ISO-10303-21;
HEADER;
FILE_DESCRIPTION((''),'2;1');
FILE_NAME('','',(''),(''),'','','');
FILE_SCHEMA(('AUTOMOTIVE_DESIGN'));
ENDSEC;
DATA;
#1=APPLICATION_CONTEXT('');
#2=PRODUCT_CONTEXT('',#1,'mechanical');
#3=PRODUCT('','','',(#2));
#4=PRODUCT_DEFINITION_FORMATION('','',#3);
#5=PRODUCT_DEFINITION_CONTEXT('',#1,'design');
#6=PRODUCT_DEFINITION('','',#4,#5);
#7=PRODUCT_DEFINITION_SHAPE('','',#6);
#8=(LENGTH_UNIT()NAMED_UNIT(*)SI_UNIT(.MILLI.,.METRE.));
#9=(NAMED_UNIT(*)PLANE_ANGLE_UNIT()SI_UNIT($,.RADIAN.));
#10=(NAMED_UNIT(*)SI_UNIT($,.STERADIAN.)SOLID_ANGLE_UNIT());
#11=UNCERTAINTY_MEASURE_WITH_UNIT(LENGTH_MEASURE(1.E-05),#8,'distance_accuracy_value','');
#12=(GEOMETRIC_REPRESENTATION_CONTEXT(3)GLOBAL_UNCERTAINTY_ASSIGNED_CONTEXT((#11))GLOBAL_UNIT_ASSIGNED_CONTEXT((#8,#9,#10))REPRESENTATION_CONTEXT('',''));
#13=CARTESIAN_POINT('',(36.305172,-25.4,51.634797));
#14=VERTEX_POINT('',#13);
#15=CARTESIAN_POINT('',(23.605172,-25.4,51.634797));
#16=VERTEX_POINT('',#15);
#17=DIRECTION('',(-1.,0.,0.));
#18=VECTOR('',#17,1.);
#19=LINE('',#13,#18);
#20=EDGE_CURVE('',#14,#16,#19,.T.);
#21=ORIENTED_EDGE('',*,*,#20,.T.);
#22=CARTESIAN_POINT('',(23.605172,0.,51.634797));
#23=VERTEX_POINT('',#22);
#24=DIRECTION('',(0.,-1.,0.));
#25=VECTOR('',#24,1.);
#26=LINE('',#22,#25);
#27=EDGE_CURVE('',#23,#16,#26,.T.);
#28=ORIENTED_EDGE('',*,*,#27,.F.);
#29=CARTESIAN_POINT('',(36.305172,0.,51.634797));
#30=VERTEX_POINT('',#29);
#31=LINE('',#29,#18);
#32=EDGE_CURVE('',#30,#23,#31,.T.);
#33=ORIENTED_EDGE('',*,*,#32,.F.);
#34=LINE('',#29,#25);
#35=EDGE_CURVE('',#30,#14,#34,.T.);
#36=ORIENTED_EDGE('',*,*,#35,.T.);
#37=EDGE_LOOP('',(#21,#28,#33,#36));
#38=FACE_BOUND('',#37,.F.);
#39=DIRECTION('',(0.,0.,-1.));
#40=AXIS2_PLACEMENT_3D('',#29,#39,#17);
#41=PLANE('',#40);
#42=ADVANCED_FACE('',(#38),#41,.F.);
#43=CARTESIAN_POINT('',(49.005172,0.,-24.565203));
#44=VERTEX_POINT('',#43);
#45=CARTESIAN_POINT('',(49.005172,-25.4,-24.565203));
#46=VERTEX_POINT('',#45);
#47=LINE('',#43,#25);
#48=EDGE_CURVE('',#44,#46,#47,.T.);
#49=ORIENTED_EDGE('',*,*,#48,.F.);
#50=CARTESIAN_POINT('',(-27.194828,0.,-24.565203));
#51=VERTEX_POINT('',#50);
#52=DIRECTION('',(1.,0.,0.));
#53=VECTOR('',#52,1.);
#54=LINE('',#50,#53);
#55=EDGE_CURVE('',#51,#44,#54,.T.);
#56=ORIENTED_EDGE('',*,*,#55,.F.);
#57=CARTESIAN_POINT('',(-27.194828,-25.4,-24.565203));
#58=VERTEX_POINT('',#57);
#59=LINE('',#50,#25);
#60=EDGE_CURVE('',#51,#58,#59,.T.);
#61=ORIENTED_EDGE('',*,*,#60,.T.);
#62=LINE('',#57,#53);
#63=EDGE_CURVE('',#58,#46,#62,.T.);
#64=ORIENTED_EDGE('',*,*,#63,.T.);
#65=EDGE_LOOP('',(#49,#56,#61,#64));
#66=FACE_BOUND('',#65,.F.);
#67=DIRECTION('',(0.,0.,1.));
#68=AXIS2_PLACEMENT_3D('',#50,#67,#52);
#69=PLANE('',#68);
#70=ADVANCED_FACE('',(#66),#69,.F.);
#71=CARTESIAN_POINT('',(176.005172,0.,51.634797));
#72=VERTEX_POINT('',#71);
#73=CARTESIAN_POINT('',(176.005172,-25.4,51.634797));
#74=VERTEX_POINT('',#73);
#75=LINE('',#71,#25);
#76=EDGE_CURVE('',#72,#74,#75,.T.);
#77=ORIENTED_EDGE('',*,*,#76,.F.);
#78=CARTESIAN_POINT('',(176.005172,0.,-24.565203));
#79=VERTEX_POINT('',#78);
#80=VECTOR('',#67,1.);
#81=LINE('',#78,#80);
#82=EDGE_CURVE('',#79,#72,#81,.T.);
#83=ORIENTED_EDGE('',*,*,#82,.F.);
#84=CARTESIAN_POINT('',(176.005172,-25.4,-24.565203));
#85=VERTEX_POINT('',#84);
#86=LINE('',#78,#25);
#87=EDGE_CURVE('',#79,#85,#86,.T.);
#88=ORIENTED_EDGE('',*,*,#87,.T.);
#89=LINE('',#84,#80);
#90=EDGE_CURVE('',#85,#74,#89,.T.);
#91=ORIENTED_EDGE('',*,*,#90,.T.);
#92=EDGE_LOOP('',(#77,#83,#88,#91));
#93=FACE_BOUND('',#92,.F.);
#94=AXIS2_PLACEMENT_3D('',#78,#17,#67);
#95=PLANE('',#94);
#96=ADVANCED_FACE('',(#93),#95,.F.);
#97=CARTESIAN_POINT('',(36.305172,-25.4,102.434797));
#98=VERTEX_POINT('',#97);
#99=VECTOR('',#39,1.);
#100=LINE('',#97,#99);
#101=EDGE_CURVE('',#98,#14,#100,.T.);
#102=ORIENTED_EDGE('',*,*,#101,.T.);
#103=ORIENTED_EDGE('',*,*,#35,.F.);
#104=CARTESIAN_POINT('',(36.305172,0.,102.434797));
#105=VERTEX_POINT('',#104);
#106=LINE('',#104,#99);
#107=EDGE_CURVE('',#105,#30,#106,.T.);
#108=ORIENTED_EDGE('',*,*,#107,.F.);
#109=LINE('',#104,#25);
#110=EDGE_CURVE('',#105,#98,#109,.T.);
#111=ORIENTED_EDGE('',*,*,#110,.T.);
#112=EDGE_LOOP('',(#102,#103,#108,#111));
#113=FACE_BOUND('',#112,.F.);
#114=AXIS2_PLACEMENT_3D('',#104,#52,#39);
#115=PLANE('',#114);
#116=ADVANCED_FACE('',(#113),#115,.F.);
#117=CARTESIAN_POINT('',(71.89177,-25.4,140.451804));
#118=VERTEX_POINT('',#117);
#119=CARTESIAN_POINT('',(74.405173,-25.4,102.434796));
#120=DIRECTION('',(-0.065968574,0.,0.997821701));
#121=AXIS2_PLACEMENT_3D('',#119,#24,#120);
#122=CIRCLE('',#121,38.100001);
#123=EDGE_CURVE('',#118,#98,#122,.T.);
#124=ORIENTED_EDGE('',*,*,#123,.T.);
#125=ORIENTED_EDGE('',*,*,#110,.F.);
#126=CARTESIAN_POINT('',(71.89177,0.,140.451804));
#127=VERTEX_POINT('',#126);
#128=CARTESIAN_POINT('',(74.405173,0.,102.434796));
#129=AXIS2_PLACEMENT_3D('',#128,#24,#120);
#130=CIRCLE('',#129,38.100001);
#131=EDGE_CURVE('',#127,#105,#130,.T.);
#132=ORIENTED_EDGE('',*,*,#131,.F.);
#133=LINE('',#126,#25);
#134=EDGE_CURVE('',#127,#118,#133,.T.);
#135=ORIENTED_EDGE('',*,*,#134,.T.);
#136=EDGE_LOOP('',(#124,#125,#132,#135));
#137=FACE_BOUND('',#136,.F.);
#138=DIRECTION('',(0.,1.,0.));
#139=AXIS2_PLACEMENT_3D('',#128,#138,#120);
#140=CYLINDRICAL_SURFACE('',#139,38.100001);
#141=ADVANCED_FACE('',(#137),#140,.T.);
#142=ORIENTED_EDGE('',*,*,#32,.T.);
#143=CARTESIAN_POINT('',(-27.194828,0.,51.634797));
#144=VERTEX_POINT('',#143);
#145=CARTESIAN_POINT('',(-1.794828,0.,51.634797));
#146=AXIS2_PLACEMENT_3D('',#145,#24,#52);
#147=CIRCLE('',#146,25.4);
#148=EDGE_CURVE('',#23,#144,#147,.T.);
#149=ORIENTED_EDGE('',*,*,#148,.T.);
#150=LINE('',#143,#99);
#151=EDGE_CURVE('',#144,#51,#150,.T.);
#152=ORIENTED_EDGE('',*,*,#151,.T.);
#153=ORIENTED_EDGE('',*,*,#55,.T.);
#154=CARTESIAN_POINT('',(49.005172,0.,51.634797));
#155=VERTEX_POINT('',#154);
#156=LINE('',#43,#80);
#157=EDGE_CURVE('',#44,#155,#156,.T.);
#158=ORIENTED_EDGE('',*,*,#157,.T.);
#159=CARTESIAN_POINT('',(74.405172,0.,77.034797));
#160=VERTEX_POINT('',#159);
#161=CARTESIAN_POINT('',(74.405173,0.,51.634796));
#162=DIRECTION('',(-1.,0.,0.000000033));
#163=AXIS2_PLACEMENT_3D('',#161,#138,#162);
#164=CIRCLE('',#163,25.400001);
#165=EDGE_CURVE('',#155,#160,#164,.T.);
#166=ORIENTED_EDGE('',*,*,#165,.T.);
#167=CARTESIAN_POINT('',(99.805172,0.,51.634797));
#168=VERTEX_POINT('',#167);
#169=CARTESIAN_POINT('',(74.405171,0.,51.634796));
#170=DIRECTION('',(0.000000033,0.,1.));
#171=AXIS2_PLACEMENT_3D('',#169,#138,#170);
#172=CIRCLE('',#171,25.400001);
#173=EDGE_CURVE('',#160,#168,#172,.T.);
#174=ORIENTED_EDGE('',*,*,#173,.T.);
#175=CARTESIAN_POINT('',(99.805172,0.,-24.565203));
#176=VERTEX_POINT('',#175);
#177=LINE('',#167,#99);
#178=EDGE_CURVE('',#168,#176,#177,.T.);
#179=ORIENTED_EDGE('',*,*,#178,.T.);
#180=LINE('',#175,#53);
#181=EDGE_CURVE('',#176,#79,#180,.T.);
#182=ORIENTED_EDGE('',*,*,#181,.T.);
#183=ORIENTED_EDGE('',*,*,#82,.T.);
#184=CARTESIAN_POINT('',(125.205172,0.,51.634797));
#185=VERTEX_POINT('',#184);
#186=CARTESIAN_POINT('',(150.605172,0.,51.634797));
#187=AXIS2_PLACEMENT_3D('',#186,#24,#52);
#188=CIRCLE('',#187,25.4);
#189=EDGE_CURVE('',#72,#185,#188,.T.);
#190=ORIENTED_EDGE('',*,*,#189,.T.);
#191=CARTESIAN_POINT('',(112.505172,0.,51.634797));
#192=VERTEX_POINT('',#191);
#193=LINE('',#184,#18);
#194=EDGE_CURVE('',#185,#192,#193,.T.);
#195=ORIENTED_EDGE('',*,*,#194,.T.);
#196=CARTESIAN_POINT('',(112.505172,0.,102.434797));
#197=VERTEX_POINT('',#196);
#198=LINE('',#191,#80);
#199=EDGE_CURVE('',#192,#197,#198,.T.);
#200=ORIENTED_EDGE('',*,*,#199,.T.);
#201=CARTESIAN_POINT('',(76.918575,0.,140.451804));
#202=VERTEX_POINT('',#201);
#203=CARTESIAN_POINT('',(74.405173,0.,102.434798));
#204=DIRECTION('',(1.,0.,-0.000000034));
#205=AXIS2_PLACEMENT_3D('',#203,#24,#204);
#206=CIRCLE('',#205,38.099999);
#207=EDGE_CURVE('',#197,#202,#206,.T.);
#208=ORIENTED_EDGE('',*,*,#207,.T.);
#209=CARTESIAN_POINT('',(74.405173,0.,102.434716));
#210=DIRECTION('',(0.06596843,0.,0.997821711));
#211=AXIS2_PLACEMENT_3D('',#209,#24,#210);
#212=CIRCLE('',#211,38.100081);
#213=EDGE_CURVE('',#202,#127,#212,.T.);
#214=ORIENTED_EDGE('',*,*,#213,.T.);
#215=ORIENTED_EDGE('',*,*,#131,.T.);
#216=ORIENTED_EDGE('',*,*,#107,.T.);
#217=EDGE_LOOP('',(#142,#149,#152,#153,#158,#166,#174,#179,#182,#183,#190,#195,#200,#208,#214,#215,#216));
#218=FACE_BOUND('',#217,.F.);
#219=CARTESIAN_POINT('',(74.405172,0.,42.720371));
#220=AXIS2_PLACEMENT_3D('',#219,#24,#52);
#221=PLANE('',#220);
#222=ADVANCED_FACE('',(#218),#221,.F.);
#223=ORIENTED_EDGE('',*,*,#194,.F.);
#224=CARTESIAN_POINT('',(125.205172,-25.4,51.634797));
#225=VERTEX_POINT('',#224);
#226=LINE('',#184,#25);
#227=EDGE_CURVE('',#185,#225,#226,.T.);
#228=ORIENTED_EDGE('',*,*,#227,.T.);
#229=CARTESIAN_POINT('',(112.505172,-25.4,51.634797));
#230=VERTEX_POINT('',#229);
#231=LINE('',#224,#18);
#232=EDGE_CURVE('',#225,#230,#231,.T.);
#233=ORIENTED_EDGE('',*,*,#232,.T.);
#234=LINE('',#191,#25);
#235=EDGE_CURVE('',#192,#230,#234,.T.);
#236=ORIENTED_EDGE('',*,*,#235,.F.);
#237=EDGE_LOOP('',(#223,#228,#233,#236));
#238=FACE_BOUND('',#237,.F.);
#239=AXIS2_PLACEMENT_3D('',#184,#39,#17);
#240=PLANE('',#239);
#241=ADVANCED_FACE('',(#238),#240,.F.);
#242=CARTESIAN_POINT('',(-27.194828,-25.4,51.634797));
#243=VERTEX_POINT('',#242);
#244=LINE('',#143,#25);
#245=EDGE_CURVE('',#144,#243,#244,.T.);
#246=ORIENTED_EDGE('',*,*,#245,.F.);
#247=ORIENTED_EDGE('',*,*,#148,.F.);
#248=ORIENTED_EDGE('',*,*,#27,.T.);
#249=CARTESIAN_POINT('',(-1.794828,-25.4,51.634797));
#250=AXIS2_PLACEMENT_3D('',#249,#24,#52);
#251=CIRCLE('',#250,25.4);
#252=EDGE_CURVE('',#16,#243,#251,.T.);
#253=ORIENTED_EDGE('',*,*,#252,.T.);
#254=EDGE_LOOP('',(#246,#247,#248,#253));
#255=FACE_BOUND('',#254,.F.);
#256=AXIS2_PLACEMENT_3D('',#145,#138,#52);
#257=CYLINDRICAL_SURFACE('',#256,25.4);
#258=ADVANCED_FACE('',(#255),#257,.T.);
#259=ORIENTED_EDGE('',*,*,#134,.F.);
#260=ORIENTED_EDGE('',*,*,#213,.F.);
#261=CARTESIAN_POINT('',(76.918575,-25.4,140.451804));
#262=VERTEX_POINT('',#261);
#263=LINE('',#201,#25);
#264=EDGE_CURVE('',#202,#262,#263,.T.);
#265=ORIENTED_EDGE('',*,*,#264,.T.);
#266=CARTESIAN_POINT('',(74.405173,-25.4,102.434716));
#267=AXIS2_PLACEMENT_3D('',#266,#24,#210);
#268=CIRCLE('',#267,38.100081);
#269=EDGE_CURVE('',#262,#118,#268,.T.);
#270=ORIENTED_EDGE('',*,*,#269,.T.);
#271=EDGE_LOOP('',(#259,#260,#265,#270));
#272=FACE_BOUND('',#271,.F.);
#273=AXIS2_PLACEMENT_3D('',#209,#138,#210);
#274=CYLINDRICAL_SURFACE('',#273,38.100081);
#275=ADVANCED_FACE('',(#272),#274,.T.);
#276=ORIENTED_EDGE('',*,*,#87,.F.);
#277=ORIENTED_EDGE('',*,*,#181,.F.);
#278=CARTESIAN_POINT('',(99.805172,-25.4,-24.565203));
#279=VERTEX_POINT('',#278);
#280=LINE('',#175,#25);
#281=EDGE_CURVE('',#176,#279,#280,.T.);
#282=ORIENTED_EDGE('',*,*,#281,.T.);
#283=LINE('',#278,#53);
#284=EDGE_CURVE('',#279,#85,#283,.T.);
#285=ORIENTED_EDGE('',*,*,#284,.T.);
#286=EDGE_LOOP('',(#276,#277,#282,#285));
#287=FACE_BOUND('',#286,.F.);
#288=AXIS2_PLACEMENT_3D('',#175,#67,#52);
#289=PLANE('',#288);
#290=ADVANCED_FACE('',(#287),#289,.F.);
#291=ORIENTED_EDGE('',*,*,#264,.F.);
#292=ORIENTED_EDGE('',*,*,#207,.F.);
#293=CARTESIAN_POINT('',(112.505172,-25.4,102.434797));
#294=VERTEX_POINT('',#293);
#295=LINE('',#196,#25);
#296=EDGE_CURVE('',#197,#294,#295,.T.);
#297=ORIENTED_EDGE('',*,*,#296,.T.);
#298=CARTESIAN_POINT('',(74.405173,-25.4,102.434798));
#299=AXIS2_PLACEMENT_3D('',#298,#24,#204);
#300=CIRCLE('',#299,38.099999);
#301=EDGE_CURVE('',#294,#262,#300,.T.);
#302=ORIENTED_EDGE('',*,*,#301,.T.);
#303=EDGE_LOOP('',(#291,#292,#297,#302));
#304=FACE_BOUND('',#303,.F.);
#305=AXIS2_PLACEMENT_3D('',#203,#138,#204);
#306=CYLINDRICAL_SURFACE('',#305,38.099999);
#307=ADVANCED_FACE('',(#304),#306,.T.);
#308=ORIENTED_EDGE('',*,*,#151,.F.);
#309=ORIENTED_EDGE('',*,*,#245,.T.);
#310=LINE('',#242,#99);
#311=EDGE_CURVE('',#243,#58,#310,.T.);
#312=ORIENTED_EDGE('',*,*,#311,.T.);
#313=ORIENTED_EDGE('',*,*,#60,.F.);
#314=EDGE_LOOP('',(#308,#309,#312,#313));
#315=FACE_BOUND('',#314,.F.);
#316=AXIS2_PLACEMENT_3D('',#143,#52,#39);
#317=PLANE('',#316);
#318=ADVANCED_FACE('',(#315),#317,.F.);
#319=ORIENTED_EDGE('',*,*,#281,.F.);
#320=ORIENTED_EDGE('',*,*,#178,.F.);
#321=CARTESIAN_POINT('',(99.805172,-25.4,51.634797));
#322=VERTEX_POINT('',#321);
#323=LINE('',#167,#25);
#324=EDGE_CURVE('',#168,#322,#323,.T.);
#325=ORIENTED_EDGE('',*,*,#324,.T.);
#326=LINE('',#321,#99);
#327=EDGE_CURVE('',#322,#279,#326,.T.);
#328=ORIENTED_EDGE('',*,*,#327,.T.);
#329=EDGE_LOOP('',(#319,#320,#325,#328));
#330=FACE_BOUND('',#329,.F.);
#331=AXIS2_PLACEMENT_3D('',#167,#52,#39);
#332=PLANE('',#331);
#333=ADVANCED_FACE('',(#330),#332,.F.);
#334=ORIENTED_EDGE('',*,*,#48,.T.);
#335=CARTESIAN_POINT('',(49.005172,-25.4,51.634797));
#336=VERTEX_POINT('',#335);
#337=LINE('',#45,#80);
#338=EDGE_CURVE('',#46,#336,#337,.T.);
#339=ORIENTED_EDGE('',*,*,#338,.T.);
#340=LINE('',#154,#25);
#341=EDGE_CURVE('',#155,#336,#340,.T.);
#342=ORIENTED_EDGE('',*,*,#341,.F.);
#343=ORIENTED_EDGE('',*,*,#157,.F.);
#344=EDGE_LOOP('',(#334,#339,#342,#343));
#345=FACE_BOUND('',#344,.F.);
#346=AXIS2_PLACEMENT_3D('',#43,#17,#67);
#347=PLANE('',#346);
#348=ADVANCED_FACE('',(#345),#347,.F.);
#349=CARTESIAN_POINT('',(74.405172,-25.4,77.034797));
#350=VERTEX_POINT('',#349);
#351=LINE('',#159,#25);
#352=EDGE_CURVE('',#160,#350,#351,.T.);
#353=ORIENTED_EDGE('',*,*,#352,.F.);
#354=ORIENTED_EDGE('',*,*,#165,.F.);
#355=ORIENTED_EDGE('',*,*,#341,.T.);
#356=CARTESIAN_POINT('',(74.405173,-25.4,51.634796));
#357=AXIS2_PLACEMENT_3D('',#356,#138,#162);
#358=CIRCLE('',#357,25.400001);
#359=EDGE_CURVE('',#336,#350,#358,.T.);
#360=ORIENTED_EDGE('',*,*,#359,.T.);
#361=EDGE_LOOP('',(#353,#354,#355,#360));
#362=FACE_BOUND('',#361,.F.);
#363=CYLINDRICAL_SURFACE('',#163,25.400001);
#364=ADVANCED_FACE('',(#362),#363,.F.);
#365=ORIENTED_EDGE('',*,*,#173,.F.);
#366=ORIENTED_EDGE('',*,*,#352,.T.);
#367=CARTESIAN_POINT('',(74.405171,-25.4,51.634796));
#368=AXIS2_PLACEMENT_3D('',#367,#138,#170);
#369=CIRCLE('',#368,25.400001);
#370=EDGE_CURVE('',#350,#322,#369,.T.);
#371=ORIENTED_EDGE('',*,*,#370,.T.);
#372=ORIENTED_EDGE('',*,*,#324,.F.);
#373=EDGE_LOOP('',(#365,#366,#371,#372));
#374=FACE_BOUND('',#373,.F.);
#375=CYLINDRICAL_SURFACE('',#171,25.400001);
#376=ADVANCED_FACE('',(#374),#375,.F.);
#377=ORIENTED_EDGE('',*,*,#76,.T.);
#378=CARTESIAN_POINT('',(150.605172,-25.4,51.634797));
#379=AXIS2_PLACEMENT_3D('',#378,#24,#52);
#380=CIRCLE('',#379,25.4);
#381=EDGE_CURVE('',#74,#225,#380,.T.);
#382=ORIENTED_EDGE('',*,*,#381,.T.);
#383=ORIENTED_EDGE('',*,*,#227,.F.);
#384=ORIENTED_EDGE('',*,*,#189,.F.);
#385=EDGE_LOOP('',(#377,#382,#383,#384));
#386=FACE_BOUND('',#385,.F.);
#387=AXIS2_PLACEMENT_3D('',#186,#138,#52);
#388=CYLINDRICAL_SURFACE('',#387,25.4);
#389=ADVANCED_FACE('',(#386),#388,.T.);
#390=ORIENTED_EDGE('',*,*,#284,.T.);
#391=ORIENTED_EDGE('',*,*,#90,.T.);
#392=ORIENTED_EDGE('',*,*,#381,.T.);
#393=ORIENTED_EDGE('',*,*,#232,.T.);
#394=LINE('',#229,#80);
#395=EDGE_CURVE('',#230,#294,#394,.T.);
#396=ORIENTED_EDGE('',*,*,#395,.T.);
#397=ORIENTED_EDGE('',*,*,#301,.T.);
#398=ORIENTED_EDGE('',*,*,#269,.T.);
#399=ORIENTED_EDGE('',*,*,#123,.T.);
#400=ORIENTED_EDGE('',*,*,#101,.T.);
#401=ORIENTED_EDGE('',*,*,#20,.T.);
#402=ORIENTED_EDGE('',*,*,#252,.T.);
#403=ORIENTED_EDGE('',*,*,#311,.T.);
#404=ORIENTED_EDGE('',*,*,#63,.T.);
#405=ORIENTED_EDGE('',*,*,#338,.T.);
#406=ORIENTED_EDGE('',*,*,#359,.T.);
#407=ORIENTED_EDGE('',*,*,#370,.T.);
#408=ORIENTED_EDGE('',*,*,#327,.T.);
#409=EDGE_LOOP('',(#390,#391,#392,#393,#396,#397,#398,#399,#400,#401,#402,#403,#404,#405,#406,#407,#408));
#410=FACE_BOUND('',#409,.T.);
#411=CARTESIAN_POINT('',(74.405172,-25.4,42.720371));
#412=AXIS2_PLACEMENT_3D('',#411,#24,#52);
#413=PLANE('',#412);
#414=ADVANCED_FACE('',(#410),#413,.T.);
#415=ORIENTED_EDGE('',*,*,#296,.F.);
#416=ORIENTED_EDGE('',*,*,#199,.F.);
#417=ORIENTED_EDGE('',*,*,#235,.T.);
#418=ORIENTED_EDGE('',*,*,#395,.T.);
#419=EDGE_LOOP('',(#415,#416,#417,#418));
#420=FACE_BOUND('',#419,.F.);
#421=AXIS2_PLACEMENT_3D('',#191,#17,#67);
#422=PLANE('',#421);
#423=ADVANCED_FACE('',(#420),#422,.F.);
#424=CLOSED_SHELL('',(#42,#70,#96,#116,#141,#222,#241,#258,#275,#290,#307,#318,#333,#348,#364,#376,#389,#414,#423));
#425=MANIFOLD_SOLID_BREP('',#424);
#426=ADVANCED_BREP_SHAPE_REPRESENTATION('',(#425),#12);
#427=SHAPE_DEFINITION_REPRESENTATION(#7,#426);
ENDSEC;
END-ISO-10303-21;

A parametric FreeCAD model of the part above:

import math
import FreeCAD as App
import Part
import Sketcher
from FreeCAD import Vector
Q = App.Units.Quantity

doc = App.newDocument("Part")
body = doc.addObject("PartDesign::Body", "Body")

# Sketch on XZ plane
sketch1 = body.newObject("Sketcher::SketchObject", "Sketch")
sketch1.AttachmentSupport = (doc.getObject("XZ_Plane"), [""])
sketch1.MapMode = "FlatFace"
sketch1.addGeometry([
    Part.LineSegment(Vector(-27.194828, 51.634797, 0), Vector(-27.194828, -24.565203, 0)),  # 0
    Part.LineSegment(Vector(-27.194828, -24.565203, 0), Vector(49.005172, -24.565203, 0)),  # 1
    Part.LineSegment(Vector(49.005172, -24.565203, 0), Vector(49.005172, 51.634797, 0)),  # 2
    Part.ArcOfCircle(Part.Circle(Vector(74.405173, 51.634796, 0), Vector(0, 0, 1), 25.400001), math.radians(90.000002), math.radians(179.999998)),  # 3
    Part.ArcOfCircle(Part.Circle(Vector(74.405171, 51.634796, 0), Vector(0, 0, 1), 25.400001), math.radians(0.000002), math.radians(89.999998)),  # 4
    Part.LineSegment(Vector(99.805172, 51.634797, 0), Vector(99.805172, -24.565203, 0)),  # 5
    Part.LineSegment(Vector(99.805172, -24.565203, 0), Vector(176.005172, -24.565203, 0)),  # 6
    Part.LineSegment(Vector(176.005172, -24.565203, 0), Vector(176.005172, 51.634797, 0)),  # 7
    Part.ArcOfCircle(Part.Circle(Vector(150.605172, 51.634797, 0), Vector(0, 0, 1), 25.4), math.radians(0), math.radians(180)),  # 8
    Part.LineSegment(Vector(125.205172, 51.634797, 0), Vector(112.505172, 51.634797, 0)),  # 9
    Part.LineSegment(Vector(112.505172, 51.634797, 0), Vector(112.505172, 102.434797, 0)),  # 10
    Part.ArcOfCircle(Part.Circle(Vector(74.405173, 102.434798, 0), Vector(0, 0, 1), 38.099999), math.radians(-0.000002), math.radians(86.217533)),  # 11
    Part.ArcOfCircle(Part.Circle(Vector(74.405173, 102.434716, 0), Vector(0, 0, 1), 38.100081), math.radians(86.217541), math.radians(93.782459)),  # 12
    Part.ArcOfCircle(Part.Circle(Vector(74.405173, 102.434796, 0), Vector(0, 0, 1), 38.100001), math.radians(93.782468), math.radians(179.999999)),  # 13
    Part.LineSegment(Vector(36.305172, 102.434797, 0), Vector(36.305172, 51.634797, 0)),  # 14
    Part.LineSegment(Vector(36.305172, 51.634797, 0), Vector(23.605172, 51.634797, 0)),  # 15
    Part.ArcOfCircle(Part.Circle(Vector(-1.794828, 51.634797, 0), Vector(0, 0, 1), 25.4), math.radians(0), math.radians(180)),  # 16
], False)
sketch1.addConstraint([
    Sketcher.Constraint("Coincident", 0, 2, 1, 1),
    Sketcher.Constraint("Coincident", 1, 2, 2, 1),
    Sketcher.Constraint("Coincident", 2, 2, 3, 2),
    Sketcher.Constraint("Coincident", 3, 1, 4, 2),
    Sketcher.Constraint("Coincident", 4, 1, 5, 1),
    Sketcher.Constraint("Coincident", 5, 2, 6, 1),
    Sketcher.Constraint("Coincident", 6, 2, 7, 1),
    Sketcher.Constraint("Coincident", 7, 2, 8, 1),
    Sketcher.Constraint("Coincident", 8, 2, 9, 1),
    Sketcher.Constraint("Coincident", 9, 2, 10, 1),
    Sketcher.Constraint("Coincident", 10, 2, 11, 1),
    Sketcher.Constraint("Coincident", 11, 2, 12, 1),
    Sketcher.Constraint("Coincident", 12, 2, 13, 1),
    Sketcher.Constraint("Coincident", 13, 2, 14, 1),
    Sketcher.Constraint("Coincident", 14, 2, 15, 1),
    Sketcher.Constraint("Coincident", 15, 2, 16, 1),
    Sketcher.Constraint("Coincident", 16, 2, 0, 1),
    Sketcher.Constraint("Vertical", 0),
    Sketcher.Constraint("Horizontal", 1),
    Sketcher.Constraint("Vertical", 2),
    Sketcher.Constraint("Vertical", 5),
    Sketcher.Constraint("Horizontal", 6),
    Sketcher.Constraint("Vertical", 7),
    Sketcher.Constraint("Horizontal", 9),
    Sketcher.Constraint("Vertical", 10),
    Sketcher.Constraint("Vertical", 14),
    Sketcher.Constraint("Horizontal", 15),
    Sketcher.Constraint("Coincident", 4, 3, 3, 3),
    Sketcher.Constraint("Coincident", 13, 3, 11, 3),
    Sketcher.Constraint("Radius", 3, Q("1 in")),
    Sketcher.Constraint("Radius", 8, Q("1 in")),
    Sketcher.Constraint("Radius", 16, Q("1 in")),
    Sketcher.Constraint("Radius", 11, Q("1.5 in")),
    Sketcher.Constraint("Radius", 13, Q("1.5 in")),
    Sketcher.Constraint("DistanceX", 1, 1, 1, 2, Q("3 in")),
    Sketcher.Constraint("DistanceX", 6, 1, 6, 2, Q("3 in")),
    Sketcher.Constraint("DistanceY", 0, 2, 0, 1, Q("3 in")),
    Sketcher.Constraint("DistanceY", 2, 1, 2, 2, Q("3 in")),
    Sketcher.Constraint("DistanceY", 5, 2, 5, 1, Q("3 in")),
    Sketcher.Constraint("DistanceY", 7, 1, 7, 2, Q("3 in")),
    Sketcher.Constraint("DistanceY", 10, 1, 10, 2, Q("2 in")),
    Sketcher.Constraint("DistanceY", 14, 2, 14, 1, Q("2 in")),
    Sketcher.Constraint("DistanceX", 9, 2, 9, 1, Q("0.5 in")),
    Sketcher.Constraint("DistanceY", 3, 3, 11, 3, Q("2.0000001 in")),
    Sketcher.Constraint("DistanceY", 8, 3, 11, 3, Q("2.0000001 in")),
    Sketcher.Constraint("DistanceY", 16, 3, 13, 3, Q("2 in")),
    Sketcher.Constraint("DistanceY", 0, 2, 16, 3, Q("3 in")),
    Sketcher.Constraint("DistanceX", 3, 1, 4, 1, Q("1 in")),
    Sketcher.Constraint("DistanceY", 4, 1, 3, 1, Q("1 in")),
    Sketcher.Constraint("DistanceY", 3, 1, 10, 2, Q("1 in")),
    Sketcher.Constraint("DistanceY", 3, 1, 13, 2, Q("1 in")),
    Sketcher.Constraint("Radius", 12, Q("38.100081 mm")),
    Sketcher.Constraint("DistanceY", -1, 1, 11, 3, Q("102.434798 mm")),
    Sketcher.Constraint("DistanceX", 11, 3, 11, 2, Q("2.513402 mm")),
    Sketcher.Constraint("DistanceX", 12, 2, 10, 2, Q("40.613402 mm")),
    Sketcher.Constraint("DistanceX", -1, 1, 4, 3, Q("74.405171 mm")),
])
pad1 = body.newObject("PartDesign::Pad", "Pad")
pad1.Profile = sketch1
pad1.Length = Q("1 in")

doc.recompute()
